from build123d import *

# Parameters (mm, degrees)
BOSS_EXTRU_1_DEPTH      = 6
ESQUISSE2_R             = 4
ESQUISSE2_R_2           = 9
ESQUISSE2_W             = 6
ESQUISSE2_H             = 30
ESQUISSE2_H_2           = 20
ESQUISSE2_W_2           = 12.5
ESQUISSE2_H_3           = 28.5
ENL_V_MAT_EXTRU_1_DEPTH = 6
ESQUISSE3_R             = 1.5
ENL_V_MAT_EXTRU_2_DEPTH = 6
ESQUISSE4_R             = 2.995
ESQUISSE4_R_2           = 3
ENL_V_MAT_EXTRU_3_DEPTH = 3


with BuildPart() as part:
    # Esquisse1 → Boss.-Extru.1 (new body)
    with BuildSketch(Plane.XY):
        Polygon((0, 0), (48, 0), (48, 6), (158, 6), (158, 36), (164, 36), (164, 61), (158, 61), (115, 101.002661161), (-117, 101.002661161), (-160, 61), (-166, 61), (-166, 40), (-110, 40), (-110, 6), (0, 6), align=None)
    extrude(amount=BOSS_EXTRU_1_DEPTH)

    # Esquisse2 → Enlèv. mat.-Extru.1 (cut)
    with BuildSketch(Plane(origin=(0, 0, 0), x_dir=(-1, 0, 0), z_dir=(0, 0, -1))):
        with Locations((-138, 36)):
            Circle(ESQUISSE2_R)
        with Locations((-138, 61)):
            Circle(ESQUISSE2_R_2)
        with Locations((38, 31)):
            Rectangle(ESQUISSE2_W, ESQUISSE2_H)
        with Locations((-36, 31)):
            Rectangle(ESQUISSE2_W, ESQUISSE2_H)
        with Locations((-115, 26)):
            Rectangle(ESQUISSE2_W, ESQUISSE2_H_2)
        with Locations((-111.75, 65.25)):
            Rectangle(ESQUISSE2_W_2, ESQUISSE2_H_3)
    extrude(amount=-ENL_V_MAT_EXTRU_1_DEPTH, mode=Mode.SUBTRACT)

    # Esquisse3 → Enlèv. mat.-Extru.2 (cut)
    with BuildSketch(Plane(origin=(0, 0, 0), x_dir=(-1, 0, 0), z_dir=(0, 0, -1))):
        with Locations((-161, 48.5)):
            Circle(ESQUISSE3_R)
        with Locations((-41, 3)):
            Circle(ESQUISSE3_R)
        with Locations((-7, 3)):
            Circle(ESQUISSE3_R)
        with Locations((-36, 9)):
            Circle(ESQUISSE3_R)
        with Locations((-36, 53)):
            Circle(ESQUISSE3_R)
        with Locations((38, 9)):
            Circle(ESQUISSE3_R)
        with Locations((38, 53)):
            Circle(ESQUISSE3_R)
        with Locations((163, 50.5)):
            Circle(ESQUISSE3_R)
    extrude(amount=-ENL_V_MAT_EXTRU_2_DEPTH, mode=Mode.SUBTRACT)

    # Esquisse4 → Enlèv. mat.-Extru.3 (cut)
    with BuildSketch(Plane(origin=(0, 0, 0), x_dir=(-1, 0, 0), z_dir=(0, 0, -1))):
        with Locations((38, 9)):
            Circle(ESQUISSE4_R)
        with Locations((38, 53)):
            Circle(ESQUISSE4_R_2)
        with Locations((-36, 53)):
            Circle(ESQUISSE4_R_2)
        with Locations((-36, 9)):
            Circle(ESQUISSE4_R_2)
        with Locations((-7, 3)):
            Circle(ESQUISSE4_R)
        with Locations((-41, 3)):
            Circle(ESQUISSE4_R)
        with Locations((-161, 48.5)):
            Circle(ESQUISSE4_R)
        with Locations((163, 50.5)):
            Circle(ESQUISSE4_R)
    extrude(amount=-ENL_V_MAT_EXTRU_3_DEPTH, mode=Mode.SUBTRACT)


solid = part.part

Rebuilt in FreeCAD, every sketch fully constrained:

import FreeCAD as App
import Part
import Sketcher

V = App.Vector

doc = App.newDocument("Part")
body = doc.addObject("PartDesign::Body", "Body")

# Sketch on XY plane
sketch1 = body.newObject("Sketcher::SketchObject", "Sketch")
sketch1.AttachmentSupport = (doc.getObject("XY_Plane"), [""])
sketch1.MapMode = "FlatFace"
sketch1.addGeometry([
    Part.LineSegment(V(0, 0, 0), V(48, 0, 0)),  # 0
    Part.LineSegment(V(48, 0, 0), V(48, 6, 0)),  # 1
    Part.LineSegment(V(48, 6, 0), V(158, 6, 0)),  # 2
    Part.LineSegment(V(158, 6, 0), V(158, 36, 0)),  # 3
    Part.LineSegment(V(158, 36, 0), V(164, 36, 0)),  # 4
    Part.LineSegment(V(164, 36, 0), V(164, 61, 0)),  # 5
    Part.LineSegment(V(164, 61, 0), V(158, 61, 0)),  # 6
    Part.LineSegment(V(158, 61, 0), V(115, 101.002661, 0)),  # 7
    Part.LineSegment(V(115, 101.002661, 0), V(-117, 101.002661, 0)),  # 8
    Part.LineSegment(V(-117, 101.002661, 0), V(-160, 61, 0)),  # 9
    Part.LineSegment(V(-160, 61, 0), V(-166, 61, 0)),  # 10
    Part.LineSegment(V(-166, 61, 0), V(-166, 40, 0)),  # 11
    Part.LineSegment(V(-166, 40, 0), V(-110, 40, 0)),  # 12
    Part.LineSegment(V(-110, 40, 0), V(-110, 6, 0)),  # 13
    Part.LineSegment(V(-110, 6, 0), V(0, 6, 0)),  # 14
    Part.LineSegment(V(0, 6, 0), V(0, 0, 0)),  # 15
], False)
sketch1.addConstraint([
    Sketcher.Constraint("Coincident", 0, 2, 1, 1),
    Sketcher.Constraint("Coincident", 1, 2, 2, 1),
    Sketcher.Constraint("Coincident", 2, 2, 3, 1),
    Sketcher.Constraint("Coincident", 3, 2, 4, 1),
    Sketcher.Constraint("Coincident", 4, 2, 5, 1),
    Sketcher.Constraint("Coincident", 5, 2, 6, 1),
    Sketcher.Constraint("Coincident", 6, 2, 7, 1),
    Sketcher.Constraint("Coincident", 7, 2, 8, 1),
    Sketcher.Constraint("Coincident", 8, 2, 9, 1),
    Sketcher.Constraint("Coincident", 9, 2, 10, 1),
    Sketcher.Constraint("Coincident", 10, 2, 11, 1),
    Sketcher.Constraint("Coincident", 11, 2, 12, 1),
    Sketcher.Constraint("Coincident", 12, 2, 13, 1),
    Sketcher.Constraint("Coincident", 13, 2, 14, 1),
    Sketcher.Constraint("Coincident", 14, 2, 15, 1),
    Sketcher.Constraint("Coincident", 15, 2, 0, 1),
    Sketcher.Constraint("Horizontal", 0),
    Sketcher.Constraint("Vertical", 1),
    Sketcher.Constraint("Horizontal", 2),
    Sketcher.Constraint("Vertical", 3),
    Sketcher.Constraint("Horizontal", 4),
    Sketcher.Constraint("Vertical", 5),
    Sketcher.Constraint("Horizontal", 6),
    Sketcher.Constraint("Horizontal", 8),
    Sketcher.Constraint("Horizontal", 10),
    Sketcher.Constraint("Vertical", 11),
    Sketcher.Constraint("Horizontal", 12),
    Sketcher.Constraint("Vertical", 13),
    Sketcher.Constraint("Horizontal", 14),
    Sketcher.Constraint("Vertical", 15),
    Sketcher.Constraint("Coincident", 15, 2, -1, 1),
    Sketcher.Constraint("Horizontal", 6, 2, 9, 2),
    Sketcher.Constraint("Horizontal", 2, 2, 13, 2),
    Sketcher.Constraint("Vertical", 3, 2, 6, 2),
    Sketcher.Constraint("Equal", 6, 10),
    Sketcher.Constraint("Equal", 2, 14),
    Sketcher.Constraint("Equal", 10, 1),
    Sketcher.Constraint("Equal", 7, 9),
    Sketcher.Constraint("DistanceX", 0, 1, 0, 2, 48.0),
    Sketcher.Constraint("DistanceX", 2, 1, 2, 2, 110.0),
    Sketcher.Constraint("DistanceX", 4, 1, 4, 2, 6.0),
    Sketcher.Constraint("DistanceX", 8, 2, 8, 1, 232.0),
    Sketcher.Constraint("DistanceX", 12, 1, 12, 2, 56.0),
    Sketcher.Constraint("DistanceY", 3, 1, 3, 2, 30.0),
    Sketcher.Constraint("DistanceY", 5, 1, 5, 2, 25.0),
    Sketcher.Constraint("DistanceY", 11, 2, 11, 1, 21.0),
    Sketcher.Constraint("Distance", 7, 58.73),
])
pad1 = body.newObject("PartDesign::Pad", "Pad")
pad1.Profile = sketch1
pad1.Length = 6

# Sketch on XY plane
sketch2 = body.newObject("Sketcher::SketchObject", "Sketch001")
sketch2.AttachmentSupport = (doc.getObject("XY_Plane"), [""])
sketch2.MapMode = "FlatFace"
sketch2.addGeometry([
    Part.Circle(V(138, 36, 0), V(0, 0, 1), 4),  # 0
    Part.Circle(V(138, 61, 0), V(0, 0, 1), 9),  # 1
    Part.LineSegment(V(-35, 46, 0), V(-35, 16, 0)),  # 2
    Part.LineSegment(V(-35, 16, 0), V(-41, 16, 0)),  # 3
    Part.LineSegment(V(-41, 16, 0), V(-41, 46, 0)),  # 4
    Part.LineSegment(V(-41, 46, 0), V(-35, 46, 0)),  # 5
    Part.LineSegment(V(39, 46, 0), V(39, 16, 0)),  # 6
    Part.LineSegment(V(39, 16, 0), V(33, 16, 0)),  # 7
    Part.LineSegment(V(33, 16, 0), V(33, 46, 0)),  # 8
    Part.LineSegment(V(33, 46, 0), V(39, 46, 0)),  # 9
    Part.LineSegment(V(118, 36, 0), V(118, 16, 0)),  # 10
    Part.LineSegment(V(118, 16, 0), V(112, 16, 0)),  # 11
    Part.LineSegment(V(112, 16, 0), V(112, 36, 0)),  # 12
    Part.LineSegment(V(112, 36, 0), V(118, 36, 0)),  # 13
    Part.LineSegment(V(118, 79.5, 0), V(118, 51, 0)),  # 14
    Part.LineSegment(V(118, 51, 0), V(105.5, 51, 0)),  # 15
    Part.LineSegment(V(105.5, 51, 0), V(105.5, 79.5, 0)),  # 16
    Part.LineSegment(V(105.5, 79.5, 0), V(118, 79.5, 0)),  # 17
], False)
sketch2.addConstraint([
    Sketcher.Constraint("Coincident", 2, 2, 3, 1),
    Sketcher.Constraint("Coincident", 3, 2, 4, 1),
    Sketcher.Constraint("Coincident", 4, 2, 5, 1),
    Sketcher.Constraint("Coincident", 5, 2, 2, 1),
    Sketcher.Constraint("Coincident", 6, 2, 7, 1),
    Sketcher.Constraint("Coincident", 7, 2, 8, 1),
    Sketcher.Constraint("Coincident", 8, 2, 9, 1),
    Sketcher.Constraint("Coincident", 9, 2, 6, 1),
    Sketcher.Constraint("Coincident", 10, 2, 11, 1),
    Sketcher.Constraint("Coincident", 11, 2, 12, 1),
    Sketcher.Constraint("Coincident", 12, 2, 13, 1),
    Sketcher.Constraint("Coincident", 13, 2, 10, 1),
    Sketcher.Constraint("Coincident", 14, 2, 15, 1),
    Sketcher.Constraint("Coincident", 15, 2, 16, 1),
    Sketcher.Constraint("Coincident", 16, 2, 17, 1),
    Sketcher.Constraint("Coincident", 17, 2, 14, 1),
    Sketcher.Constraint("Vertical", 2),
    Sketcher.Constraint("Horizontal", 3),
    Sketcher.Constraint("Vertical", 4),
    Sketcher.Constraint("Horizontal", 5),
    Sketcher.Constraint("Vertical", 6),
    Sketcher.Constraint("Horizontal", 7),
    Sketcher.Constraint("Vertical", 8),
    Sketcher.Constraint("Horizontal", 9),
    Sketcher.Constraint("Vertical", 10),
    Sketcher.Constraint("Horizontal", 11),
    Sketcher.Constraint("Vertical", 12),
    Sketcher.Constraint("Horizontal", 13),
    Sketcher.Constraint("Vertical", 14),
    Sketcher.Constraint("Horizontal", 15),
    Sketcher.Constraint("Vertical", 16),
    Sketcher.Constraint("Horizontal", 17),
    Sketcher.Constraint("Horizontal", 3, 2, 6, 2),
    Sketcher.Constraint("Horizontal", 5, 2, 8, 2),
    Sketcher.Constraint("Horizontal", 7, 2, 10, 2),
    Sketcher.Constraint("Horizontal", 0, 3, 12, 2),
    Sketcher.Constraint("Vertical", 0, 3, 1, 3),
    Sketcher.Constraint("Vertical", 13, 2, 14, 2),
    Sketcher.Constraint("Equal", 5, 7),
    Sketcher.Constraint("Equal", 9, 11),
    Sketcher.Constraint("Diameter", 0, 8.0),
    Sketcher.Constraint("Diameter", 1, 18.0),
    Sketcher.Constraint("DistanceX", 3, 2, 3, 1, 6.0),
    Sketcher.Constraint("DistanceY", 2, 2, 2, 1, 30.0),
    Sketcher.Constraint("DistanceY", 10, 2, 10, 1, 20.0),
    Sketcher.Constraint("DistanceX", 15, 2, 15, 1, 12.5),
    Sketcher.Constraint("DistanceY", 14, 2, 14, 1, 28.5),
    Sketcher.Constraint("DistanceX", -1, 1, 0, 3, 138.0),
    Sketcher.Constraint("DistanceY", -1, 1, 0, 3, 36.0),
    Sketcher.Constraint("DistanceY", -1, 1, 1, 3, 61.0),
    Sketcher.Constraint("DistanceX", 2, 2, -1, 1, 35.0),
    Sketcher.Constraint("DistanceX", -1, 1, 6, 2, 39.0),
    Sketcher.Constraint("DistanceX", -1, 1, 10, 2, 118.0),
    Sketcher.Constraint("DistanceY", -1, 1, 14, 2, 51.0),
])
pocket1 = body.newObject("PartDesign::Pocket", "Pocket")
pocket1.Profile = sketch2
pocket1.Length = 6
pocket1.Reversed = True

# Sketch on XY plane
sketch3 = body.newObject("Sketcher::SketchObject", "Sketch002")
sketch3.AttachmentSupport = (doc.getObject("XY_Plane"), [""])
sketch3.MapMode = "FlatFace"
sketch3.addGeometry([
    Part.Circle(V(161, 48.5, 0), V(0, 0, 1), 1.5),  # 0
    Part.Circle(V(41, 3, 0), V(0, 0, 1), 1.5),  # 1
    Part.Circle(V(7, 3, 0), V(0, 0, 1), 1.5),  # 2
    Part.Circle(V(36, 9, 0), V(0, 0, 1), 1.5),  # 3
    Part.Circle(V(36, 53, 0), V(0, 0, 1), 1.5),  # 4
    Part.Circle(V(-38, 9, 0), V(0, 0, 1), 1.5),  # 5
    Part.Circle(V(-38, 53, 0), V(0, 0, 1), 1.5),  # 6
    Part.Circle(V(-163, 50.5, 0), V(0, 0, 1), 1.5),  # 7
], False)
sketch3.addConstraint([
    Sketcher.Constraint("Equal", 0, 1),
    Sketcher.Constraint("Equal", 1, 2),
    Sketcher.Constraint("Equal", 2, 3),
    Sketcher.Constraint("Equal", 3, 4),
    Sketcher.Constraint("Equal", 4, 5),
    Sketcher.Constraint("Equal", 5, 6),
    Sketcher.Constraint("Equal", 6, 7),
    Sketcher.Constraint("Horizontal", 1, 3, 2, 3),
    Sketcher.Constraint("Horizontal", 3, 3, 5, 3),
    Sketcher.Constraint("Horizontal", 4, 3, 6, 3),
    Sketcher.Constraint("Vertical", 3, 3, 4, 3),
    Sketcher.Constraint("Vertical", 5, 3, 6, 3),
    Sketcher.Constraint("Diameter", 0, 3.0),
    Sketcher.Constraint("DistanceX", -1, 1, 0, 3, 161.0),
    Sketcher.Constraint("DistanceX", -1, 1, 1, 3, 41.0),
    Sketcher.Constraint("DistanceY", -1, 1, 1, 3, 3.0),
    Sketcher.Constraint("DistanceX", -1, 1, 2, 3, 7.0),
    Sketcher.Constraint("DistanceX", -1, 1, 3, 3, 36.0),
    Sketcher.Constraint("DistanceY", -1, 1, 3, 3, 9.0),
    Sketcher.Constraint("DistanceY", -1, 1, 4, 3, 53.0),
    Sketcher.Constraint("DistanceX", 5, 3, -1, 1, 38.0),
    Sketcher.Constraint("DistanceX", 7, 3, -1, 1, 163.0),
    Sketcher.Constraint("DistanceY", -1, 1, 0, 3, 48.5),
    Sketcher.Constraint("DistanceY", -1, 1, 7, 3, 50.5),
])
pocket2 = body.newObject("PartDesign::Pocket", "Pocket001")
pocket2.Profile = sketch3
pocket2.Length = 6
pocket2.Reversed = True

# Sketch on XY plane
sketch4 = body.newObject("Sketcher::SketchObject", "Sketch003")
sketch4.AttachmentSupport = (doc.getObject("XY_Plane"), [""])
sketch4.MapMode = "FlatFace"
sketch4.addGeometry([
    Part.Circle(V(-38, 9, 0), V(0, 0, 1), 2.995),  # 0
    Part.Circle(V(-38, 53, 0), V(0, 0, 1), 3),  # 1
    Part.Circle(V(36, 53, 0), V(0, 0, 1), 3),  # 2
    Part.Circle(V(36, 9, 0), V(0, 0, 1), 3),  # 3
    Part.Circle(V(7, 3, 0), V(0, 0, 1), 2.995),  # 4
    Part.Circle(V(41, 3, 0), V(0, 0, 1), 2.995),  # 5
    Part.Circle(V(161, 48.5, 0), V(0, 0, 1), 2.995),  # 6
    Part.Circle(V(-163, 50.5, 0), V(0, 0, 1), 2.995),  # 7
], False)
sketch4.addConstraint([
    Sketcher.Constraint("Equal", 1, 2),
    Sketcher.Constraint("Equal", 2, 3),
    Sketcher.Constraint("Equal", 0, 4),
    Sketcher.Constraint("Equal", 4, 5),
    Sketcher.Constraint("Equal", 5, 6),
    Sketcher.Constraint("Equal", 6, 7),
    Sketcher.Constraint("Horizontal", 1, 3, 2, 3),
    Sketcher.Constraint("Horizontal", 0, 3, 3, 3),
    Sketcher.Constraint("Horizontal", 4, 3, 5, 3),
    Sketcher.Constraint("Vertical", 0, 3, 1, 3),
    Sketcher.Constraint("Vertical", 2, 3, 3, 3),
    Sketcher.Constraint("Diameter", 1, 6.0),
    Sketcher.Constraint("Diameter", 0, 5.99),
    Sketcher.Constraint("DistanceX", 0, 3, -1, 1, 38.0),
    Sketcher.Constraint("DistanceY", -1, 1, 0, 3, 9.0),
    Sketcher.Constraint("DistanceY", -1, 1, 1, 3, 53.0),
    Sketcher.Constraint("DistanceX", -1, 1, 2, 3, 36.0),
    Sketcher.Constraint("DistanceX", -1, 1, 4, 3, 7.0),
    Sketcher.Constraint("DistanceY", -1, 1, 4, 3, 3.0),
    Sketcher.Constraint("DistanceX", -1, 1, 5, 3, 41.0),
    Sketcher.Constraint("DistanceX", -1, 1, 6, 3, 161.0),
    Sketcher.Constraint("DistanceX", 7, 3, -1, 1, 163.0),
    Sketcher.Constraint("DistanceY", -1, 1, 6, 3, 48.5),
    Sketcher.Constraint("DistanceY", -1, 1, 7, 3, 50.5),
])
pocket3 = body.newObject("PartDesign::Pocket", "Pocket002")
pocket3.Profile = sketch4
pocket3.Length = 3
pocket3.Reversed = True

doc.recompute()
